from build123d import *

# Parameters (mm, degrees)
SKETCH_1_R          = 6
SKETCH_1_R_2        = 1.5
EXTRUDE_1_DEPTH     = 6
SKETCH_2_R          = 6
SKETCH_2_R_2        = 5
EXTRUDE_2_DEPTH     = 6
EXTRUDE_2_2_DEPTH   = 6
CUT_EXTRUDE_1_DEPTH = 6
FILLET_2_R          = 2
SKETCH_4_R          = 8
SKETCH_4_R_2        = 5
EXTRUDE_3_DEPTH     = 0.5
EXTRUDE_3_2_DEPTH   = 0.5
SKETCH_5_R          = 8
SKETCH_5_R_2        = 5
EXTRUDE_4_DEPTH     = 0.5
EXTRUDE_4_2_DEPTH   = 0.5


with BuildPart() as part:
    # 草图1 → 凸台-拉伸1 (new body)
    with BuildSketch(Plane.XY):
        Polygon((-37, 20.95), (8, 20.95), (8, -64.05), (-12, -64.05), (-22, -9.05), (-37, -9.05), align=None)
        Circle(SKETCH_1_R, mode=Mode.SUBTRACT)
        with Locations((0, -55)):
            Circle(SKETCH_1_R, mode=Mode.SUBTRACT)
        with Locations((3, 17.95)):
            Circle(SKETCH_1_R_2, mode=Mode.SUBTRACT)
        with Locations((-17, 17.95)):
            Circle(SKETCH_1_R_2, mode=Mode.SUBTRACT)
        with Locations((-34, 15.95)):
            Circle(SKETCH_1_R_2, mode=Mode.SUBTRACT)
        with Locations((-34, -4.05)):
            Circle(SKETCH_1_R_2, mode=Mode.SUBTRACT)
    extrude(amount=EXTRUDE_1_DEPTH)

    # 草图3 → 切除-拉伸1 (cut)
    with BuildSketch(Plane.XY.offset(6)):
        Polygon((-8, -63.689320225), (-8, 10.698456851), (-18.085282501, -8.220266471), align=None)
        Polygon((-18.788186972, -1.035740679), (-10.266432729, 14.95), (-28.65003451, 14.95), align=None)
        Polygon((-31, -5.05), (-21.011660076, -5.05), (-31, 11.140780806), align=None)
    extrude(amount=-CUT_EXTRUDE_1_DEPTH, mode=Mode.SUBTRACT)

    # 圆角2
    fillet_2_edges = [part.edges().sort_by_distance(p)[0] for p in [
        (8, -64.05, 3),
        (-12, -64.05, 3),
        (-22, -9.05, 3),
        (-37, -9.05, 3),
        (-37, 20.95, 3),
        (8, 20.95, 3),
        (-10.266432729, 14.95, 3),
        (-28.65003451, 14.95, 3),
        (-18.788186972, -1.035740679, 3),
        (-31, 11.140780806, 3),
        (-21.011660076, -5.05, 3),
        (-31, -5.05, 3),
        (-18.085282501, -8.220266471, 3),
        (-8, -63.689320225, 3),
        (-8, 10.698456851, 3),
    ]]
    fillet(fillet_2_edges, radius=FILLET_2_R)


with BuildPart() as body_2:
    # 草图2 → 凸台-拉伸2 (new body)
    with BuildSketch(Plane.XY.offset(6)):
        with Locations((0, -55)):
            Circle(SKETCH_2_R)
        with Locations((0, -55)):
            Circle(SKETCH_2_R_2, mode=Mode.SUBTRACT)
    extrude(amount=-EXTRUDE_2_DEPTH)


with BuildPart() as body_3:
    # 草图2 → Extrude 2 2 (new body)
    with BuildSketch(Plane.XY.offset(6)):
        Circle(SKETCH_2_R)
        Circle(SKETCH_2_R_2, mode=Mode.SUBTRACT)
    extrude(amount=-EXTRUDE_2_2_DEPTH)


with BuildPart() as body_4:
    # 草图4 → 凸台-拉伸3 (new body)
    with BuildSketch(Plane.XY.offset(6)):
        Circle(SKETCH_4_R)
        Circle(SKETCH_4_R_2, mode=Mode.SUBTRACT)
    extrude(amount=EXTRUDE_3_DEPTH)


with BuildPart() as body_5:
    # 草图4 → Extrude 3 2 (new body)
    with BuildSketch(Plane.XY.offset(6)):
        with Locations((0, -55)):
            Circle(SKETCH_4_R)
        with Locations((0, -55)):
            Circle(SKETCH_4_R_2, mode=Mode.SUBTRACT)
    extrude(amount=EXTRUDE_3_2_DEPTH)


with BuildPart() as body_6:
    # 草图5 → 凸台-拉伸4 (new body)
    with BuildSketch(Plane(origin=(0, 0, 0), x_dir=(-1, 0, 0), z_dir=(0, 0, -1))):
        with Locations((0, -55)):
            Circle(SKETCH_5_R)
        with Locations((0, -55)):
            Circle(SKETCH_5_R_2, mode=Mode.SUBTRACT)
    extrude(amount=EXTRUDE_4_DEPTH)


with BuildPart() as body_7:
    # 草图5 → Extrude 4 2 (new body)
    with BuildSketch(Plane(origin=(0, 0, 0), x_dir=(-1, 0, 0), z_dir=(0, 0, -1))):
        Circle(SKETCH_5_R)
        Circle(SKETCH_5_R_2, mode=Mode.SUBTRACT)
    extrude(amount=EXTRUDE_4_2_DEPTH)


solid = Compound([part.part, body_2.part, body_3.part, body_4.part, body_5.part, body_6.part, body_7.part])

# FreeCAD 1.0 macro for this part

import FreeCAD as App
import Part
import Sketcher

V = App.Vector


def edges_at(feature, points):
    """Names of the edges that pass closest to the given points."""
    edges = feature.Shape.Edges
    near = lambda p: min(range(len(edges)), key=lambda i: edges[i].distToShape(Part.Vertex(*p))[0])
    return sorted({f"Edge{near(p) + 1}" for p in points})


def add_polygon(sketch, points):
    """Adds a closed chain of lines whose ends are joined by coincident constraints."""
    first, n = sketch.GeometryCount, len(points)
    for a, b in zip(points, points[1:] + points[:1]):
        sketch.addGeometry(Part.LineSegment(App.Vector(*a, 0), App.Vector(*b, 0)), False)
    for i in range(n):
        sketch.addConstraint(Sketcher.Constraint("Coincident", first + i, 2, first + (i + 1) % n, 1))

doc = App.newDocument("Part")
params = doc.addObject("Spreadsheet::Sheet", "Params")
for row, (alias, value) in enumerate([
    ("sketch1_diameter", "12 mm"),
    ("sketch1_diameter2", "3 mm"),
    ("sketch1_width", "45 mm"),
    ("sketch1_width2", "15 mm"),
    ("sketch1_width3", "20 mm"),
    ("pad1_length", "6 mm"),
    ("pocket1_length", "6 mm"),
    ("fillet_radius", "2 mm"),
    ("sketch3_diameter", "12 mm"),
    ("sketch3_diameter2", "10 mm"),
    ("pad2_length", "6 mm"),
    ("sketch4_diameter", "12 mm"),
    ("sketch4_diameter2", "10 mm"),
    ("pad3_length", "6 mm"),
    ("sketch5_diameter", "16 mm"),
    ("sketch5_diameter2", "10 mm"),
    ("pad4_length", "0.5 mm"),
    ("sketch6_diameter", "16 mm"),
    ("sketch6_diameter2", "10 mm"),
    ("pad5_length", "0.5 mm"),
    ("sketch7_diameter", "16 mm"),
    ("sketch7_diameter2", "10 mm"),
    ("pad6_length", "0.5 mm"),
    ("sketch8_diameter", "16 mm"),
    ("sketch8_diameter2", "10 mm"),
    ("pad7_length", "0.5 mm"),
], start=1):
    params.set(f"A{row}", alias)
    params.set(f"B{row}", "=" + value)
    params.setAlias(f"B{row}", alias)

body = doc.addObject("PartDesign::Body", "Body")

sketch1 = body.newObject("Sketcher::SketchObject", "Sketch")
sketch1.AttachmentSupport = (doc.getObject("XY_Plane"), [""])
sketch1.MapMode = "FlatFace"
add_polygon(sketch1, [(8, 20.95), (-37, 20.95), (-37, -9.05), (-22, -9.05), (-12, -64.05), (8, -64.05)])
sketch1.addGeometry(Part.Circle(V(0, -55, 0), V(0, 0, 1), 6), False)
sketch1.addGeometry(Part.Circle(V(0, 0, 0), V(0, 0, 1), 6), False)
sketch1.addGeometry(Part.Circle(V(3, 17.95, 0), V(0, 0, 1), 1.5), False)
sketch1.addGeometry(Part.Circle(V(-34, -4.05, 0), V(0, 0, 1), 1.5), False)
sketch1.addGeometry(Part.Circle(V(-17, 17.95, 0), V(0, 0, 1), 1.5), False)
sketch1.addGeometry(Part.Circle(V(-34, 15.95, 0), V(0, 0, 1), 1.5), False)
sketch1.addConstraint([
    Sketcher.Constraint("Horizontal", 0),
    Sketcher.Constraint("Vertical", 1),
    Sketcher.Constraint("Horizontal", 2),
    Sketcher.Constraint("Horizontal", 4),
    Sketcher.Constraint("Vertical", 5),
    Sketcher.Constraint("Coincident", 7, 3, -1, 1),
    Sketcher.Constraint("Equal", 6, 7),
    Sketcher.Constraint("Equal", 8, 9),
    Sketcher.Constraint("Equal", 9, 10),
    Sketcher.Constraint("Equal", 10, 11),
    Sketcher.Constraint("PointOnObject", 6, 3, -2),
    Sketcher.Constraint("Horizontal", 8, 3, 10, 3),
    Sketcher.Constraint("Vertical", 9, 3, 11, 3),
    Sketcher.Constraint("Diameter", 6, 12.0),
    Sketcher.Constraint("Diameter", 8, 3.0),
    Sketcher.Constraint("DistanceX", 0, 2, 0, 1, 45.0),
    Sketcher.Constraint("DistanceX", 2, 1, 2, 2, 15.0),
    Sketcher.Constraint("DistanceX", 4, 1, 4, 2, 20.0),
    Sketcher.Constraint("DistanceY", 1, 2, 1, 1, 30.0),
    Sketcher.Constraint("DistanceY", 5, 1, 5, 2, 85.0),
    Sketcher.Constraint("DistanceY", 6, 3, -1, 1, 55.0),
    Sketcher.Constraint("DistanceX", -1, 1, 8, 3, 3.0),
    Sketcher.Constraint("DistanceX", 9, 3, -1, 1, 34.0),
    Sketcher.Constraint("DistanceX", 10, 3, -1, 1, 17.0),
    Sketcher.Constraint("DistanceX", 0, 2, -1, 1, 37.0),
    Sketcher.Constraint("DistanceY", 9, 3, 8, 3, 22.0),
    Sketcher.Constraint("DistanceY", 11, 3, 10, 3, 2.0),
    Sketcher.Constraint("DistanceY", 11, 3, 0, 2, 5.0),
    Sketcher.Constraint("DistanceY", -1, 1, 8, 3, 17.95),
])
sketch1.setExpression("Constraints[19]", "Params.sketch1_diameter")
sketch1.setExpression("Constraints[20]", "Params.sketch1_diameter2")
sketch1.setExpression("Constraints[21]", "Params.sketch1_width")
sketch1.setExpression("Constraints[22]", "Params.sketch1_width2")
sketch1.setExpression("Constraints[23]", "Params.sketch1_width3")
pad1 = body.newObject("PartDesign::Pad", "Pad")
pad1.Profile = sketch1
pad1.setExpression("Length", "Params.pad1_length")

sketch2 = body.newObject("Sketcher::SketchObject", "Sketch001")
sketch2.AttachmentSupport = (doc.getObject("XY_Plane"), [""])
sketch2.MapMode = "FlatFace"
sketch2.AttachmentOffset = App.Placement(V(0, 0, 6), App.Rotation())
add_polygon(sketch2, [(-8, -63.68932), (-8, 10.698457), (-18.085283, -8.220266)])
add_polygon(sketch2, [(-18.788187, -1.035741), (-10.266433, 14.95), (-28.650035, 14.95)])
add_polygon(sketch2, [(-31, -5.05), (-21.01166, -5.05), (-31, 11.140781)])
sketch2.addConstraint([
    Sketcher.Constraint("Vertical", 0),
    Sketcher.Constraint("Horizontal", 4),
    Sketcher.Constraint("Horizontal", 6),
    Sketcher.Constraint("Vertical", 8),
    Sketcher.Constraint("Parallel", 1, 3),
    Sketcher.Constraint("Parallel", 5, 7),
    Sketcher.Constraint("DistanceX", 0, 2, -1, 1, 8.0),
    Sketcher.Constraint("DistanceX", 7, 2, -1, 1, 31.0),
    Sketcher.Constraint("DistanceY", 6, 2, 4, 2, 20.0),
    Sketcher.Constraint("DistanceY", -1, 1, 3, 2, 14.95),
    Sketcher.Constraint("DistanceX", 4, 2, 4, 1, 18.383602),
    Sketcher.Constraint("DistanceX", 6, 1, 6, 2, 9.98834),
    Sketcher.Constraint("DistanceY", 8, 2, 8, 1, 16.190781),
    Sketcher.Constraint("Distance", 5, 18.782969),
    Sketcher.Constraint("DistanceY", 0, 1, 0, 2, 74.387777),
    Sketcher.Constraint("DistanceY", 2, 2, -1, 1, 63.68932),
    Sketcher.Constraint("DistanceX", 1, 2, 3, 2, 7.81885),
    Sketcher.Constraint("Distance", 1, 21.439007),
])
pocket1 = body.newObject("PartDesign::Pocket", "Pocket")
pocket1.Profile = sketch2
pocket1.setExpression("Length", "Params.pocket1_length")
doc.recompute()

fillet = body.newObject("PartDesign::Fillet", "Fillet")
fillet.Base = (pocket1, edges_at(pocket1, [
    (8, -64.05, 3),
    (-12, -64.05, 3),
    (-22, -9.05, 3),
    (-37, -9.05, 3),
    (-37, 20.95, 3),
    (8, 20.95, 3),
    (-10.266, 14.95, 3),
    (-28.65, 14.95, 3),
    (-18.788, -1.036, 3),
    (-31, 11.141, 3),
    (-21.012, -5.05, 3),
    (-31, -5.05, 3),
    (-18.085, -8.22, 3),
    (-8, -63.689, 3),
    (-8, 10.698, 3),
]))
fillet.setExpression("Radius", "Params.fillet_radius")
body2 = doc.addObject("PartDesign::Body", "Body001")

sketch3 = body2.newObject("Sketcher::SketchObject", "Sketch002")
sketch3.AttachmentSupport = (doc.getObject("XY_Plane001"), [""])
sketch3.MapMode = "FlatFace"
sketch3.AttachmentOffset = App.Placement(V(0, 0, 6), App.Rotation())
sketch3.addGeometry([
    Part.Circle(V(0, -55, 0), V(0, 0, 1), 6),
    Part.Circle(V(0, -55, 0), V(0, 0, 1), 5),
], False)
sketch3.addConstraint([
    Sketcher.Constraint("Coincident", 1, 3, 0, 3),
    Sketcher.Constraint("PointOnObject", 0, 3, -2),
    Sketcher.Constraint("Diameter", 0, 12.0),
    Sketcher.Constraint("Diameter", 1, 10.0),
    Sketcher.Constraint("DistanceY", 0, 3, -1, 1, 55.0),
])
sketch3.setExpression("Constraints[2]", "Params.sketch3_diameter")
sketch3.setExpression("Constraints[3]", "Params.sketch3_diameter2")
pad2 = body2.newObject("PartDesign::Pad", "Pad001")
pad2.Profile = sketch3
pad2.setExpression("Length", "Params.pad2_length")
pad2.Reversed = True
body3 = doc.addObject("PartDesign::Body", "Body002")

sketch4 = body3.newObject("Sketcher::SketchObject", "Sketch003")
sketch4.AttachmentSupport = (doc.getObject("XY_Plane002"), [""])
sketch4.MapMode = "FlatFace"
sketch4.AttachmentOffset = App.Placement(V(0, 0, 6), App.Rotation())
sketch4.addGeometry([
    Part.Circle(V(0, 0, 0), V(0, 0, 1), 6),
    Part.Circle(V(0, 0, 0), V(0, 0, 1), 5),
], False)
sketch4.addConstraint([
    Sketcher.Constraint("Coincident", 0, 3, -1, 1),
    Sketcher.Constraint("Coincident", 1, 3, -1, 1),
    Sketcher.Constraint("Diameter", 0, 12.0),
    Sketcher.Constraint("Diameter", 1, 10.0),
])
sketch4.setExpression("Constraints[2]", "Params.sketch4_diameter")
sketch4.setExpression("Constraints[3]", "Params.sketch4_diameter2")
pad3 = body3.newObject("PartDesign::Pad", "Pad002")
pad3.Profile = sketch4
pad3.setExpression("Length", "Params.pad3_length")
pad3.Reversed = True
body4 = doc.addObject("PartDesign::Body", "Body003")

sketch5 = body4.newObject("Sketcher::SketchObject", "Sketch004")
sketch5.AttachmentSupport = (doc.getObject("XY_Plane003"), [""])
sketch5.MapMode = "FlatFace"
sketch5.AttachmentOffset = App.Placement(V(0, 0, 6), App.Rotation())
sketch5.addGeometry([
    Part.Circle(V(0, 0, 0), V(0, 0, 1), 8),
    Part.Circle(V(0, 0, 0), V(0, 0, 1), 5),
], False)
sketch5.addConstraint([
    Sketcher.Constraint("Coincident", 0, 3, -1, 1),
    Sketcher.Constraint("Coincident", 1, 3, -1, 1),
    Sketcher.Constraint("Diameter", 0, 16.0),
    Sketcher.Constraint("Diameter", 1, 10.0),
])
sketch5.setExpression("Constraints[2]", "Params.sketch5_diameter")
sketch5.setExpression("Constraints[3]", "Params.sketch5_diameter2")
pad4 = body4.newObject("PartDesign::Pad", "Pad003")
pad4.Profile = sketch5
pad4.setExpression("Length", "Params.pad4_length")
body5 = doc.addObject("PartDesign::Body", "Body004")

sketch6 = body5.newObject("Sketcher::SketchObject", "Sketch005")
sketch6.AttachmentSupport = (doc.getObject("XY_Plane004"), [""])
sketch6.MapMode = "FlatFace"
sketch6.AttachmentOffset = App.Placement(V(0, 0, 6), App.Rotation())
sketch6.addGeometry([
    Part.Circle(V(0, -55, 0), V(0, 0, 1), 8),
    Part.Circle(V(0, -55, 0), V(0, 0, 1), 5),
], False)
sketch6.addConstraint([
    Sketcher.Constraint("Coincident", 1, 3, 0, 3),
    Sketcher.Constraint("PointOnObject", 0, 3, -2),
    Sketcher.Constraint("Diameter", 0, 16.0),
    Sketcher.Constraint("Diameter", 1, 10.0),
    Sketcher.Constraint("DistanceY", 0, 3, -1, 1, 55.0),
])
sketch6.setExpression("Constraints[2]", "Params.sketch6_diameter")
sketch6.setExpression("Constraints[3]", "Params.sketch6_diameter2")
pad5 = body5.newObject("PartDesign::Pad", "Pad004")
pad5.Profile = sketch6
pad5.setExpression("Length", "Params.pad5_length")
body6 = doc.addObject("PartDesign::Body", "Body005")

sketch7 = body6.newObject("Sketcher::SketchObject", "Sketch006")
sketch7.AttachmentSupport = (doc.getObject("XY_Plane005"), [""])
sketch7.MapMode = "FlatFace"
sketch7.addGeometry([
    Part.Circle(V(0, -55, 0), V(0, 0, 1), 8),
    Part.Circle(V(0, -55, 0), V(0, 0, 1), 5),
], False)
sketch7.addConstraint([
    Sketcher.Constraint("Coincident", 1, 3, 0, 3),
    Sketcher.Constraint("PointOnObject", 0, 3, -2),
    Sketcher.Constraint("Diameter", 0, 16.0),
    Sketcher.Constraint("Diameter", 1, 10.0),
    Sketcher.Constraint("DistanceY", 0, 3, -1, 1, 55.0),
])
sketch7.setExpression("Constraints[2]", "Params.sketch7_diameter")
sketch7.setExpression("Constraints[3]", "Params.sketch7_diameter2")
pad6 = body6.newObject("PartDesign::Pad", "Pad005")
pad6.Profile = sketch7
pad6.setExpression("Length", "Params.pad6_length")
pad6.Reversed = True
body7 = doc.addObject("PartDesign::Body", "Body006")

sketch8 = body7.newObject("Sketcher::SketchObject", "Sketch007")
sketch8.AttachmentSupport = (doc.getObject("XY_Plane006"), [""])
sketch8.MapMode = "FlatFace"
sketch8.addGeometry([
    Part.Circle(V(0, 0, 0), V(0, 0, 1), 8),
    Part.Circle(V(0, 0, 0), V(0, 0, 1), 5),
], False)
sketch8.addConstraint([
    Sketcher.Constraint("Coincident", 0, 3, -1, 1),
    Sketcher.Constraint("Coincident", 1, 3, -1, 1),
    Sketcher.Constraint("Diameter", 0, 16.0),
    Sketcher.Constraint("Diameter", 1, 10.0),
])
sketch8.setExpression("Constraints[2]", "Params.sketch8_diameter")
sketch8.setExpression("Constraints[3]", "Params.sketch8_diameter2")
pad7 = body7.newObject("PartDesign::Pad", "Pad006")
pad7.Profile = sketch8
pad7.setExpression("Length", "Params.pad7_length")
pad7.Reversed = True

doc.recompute()
